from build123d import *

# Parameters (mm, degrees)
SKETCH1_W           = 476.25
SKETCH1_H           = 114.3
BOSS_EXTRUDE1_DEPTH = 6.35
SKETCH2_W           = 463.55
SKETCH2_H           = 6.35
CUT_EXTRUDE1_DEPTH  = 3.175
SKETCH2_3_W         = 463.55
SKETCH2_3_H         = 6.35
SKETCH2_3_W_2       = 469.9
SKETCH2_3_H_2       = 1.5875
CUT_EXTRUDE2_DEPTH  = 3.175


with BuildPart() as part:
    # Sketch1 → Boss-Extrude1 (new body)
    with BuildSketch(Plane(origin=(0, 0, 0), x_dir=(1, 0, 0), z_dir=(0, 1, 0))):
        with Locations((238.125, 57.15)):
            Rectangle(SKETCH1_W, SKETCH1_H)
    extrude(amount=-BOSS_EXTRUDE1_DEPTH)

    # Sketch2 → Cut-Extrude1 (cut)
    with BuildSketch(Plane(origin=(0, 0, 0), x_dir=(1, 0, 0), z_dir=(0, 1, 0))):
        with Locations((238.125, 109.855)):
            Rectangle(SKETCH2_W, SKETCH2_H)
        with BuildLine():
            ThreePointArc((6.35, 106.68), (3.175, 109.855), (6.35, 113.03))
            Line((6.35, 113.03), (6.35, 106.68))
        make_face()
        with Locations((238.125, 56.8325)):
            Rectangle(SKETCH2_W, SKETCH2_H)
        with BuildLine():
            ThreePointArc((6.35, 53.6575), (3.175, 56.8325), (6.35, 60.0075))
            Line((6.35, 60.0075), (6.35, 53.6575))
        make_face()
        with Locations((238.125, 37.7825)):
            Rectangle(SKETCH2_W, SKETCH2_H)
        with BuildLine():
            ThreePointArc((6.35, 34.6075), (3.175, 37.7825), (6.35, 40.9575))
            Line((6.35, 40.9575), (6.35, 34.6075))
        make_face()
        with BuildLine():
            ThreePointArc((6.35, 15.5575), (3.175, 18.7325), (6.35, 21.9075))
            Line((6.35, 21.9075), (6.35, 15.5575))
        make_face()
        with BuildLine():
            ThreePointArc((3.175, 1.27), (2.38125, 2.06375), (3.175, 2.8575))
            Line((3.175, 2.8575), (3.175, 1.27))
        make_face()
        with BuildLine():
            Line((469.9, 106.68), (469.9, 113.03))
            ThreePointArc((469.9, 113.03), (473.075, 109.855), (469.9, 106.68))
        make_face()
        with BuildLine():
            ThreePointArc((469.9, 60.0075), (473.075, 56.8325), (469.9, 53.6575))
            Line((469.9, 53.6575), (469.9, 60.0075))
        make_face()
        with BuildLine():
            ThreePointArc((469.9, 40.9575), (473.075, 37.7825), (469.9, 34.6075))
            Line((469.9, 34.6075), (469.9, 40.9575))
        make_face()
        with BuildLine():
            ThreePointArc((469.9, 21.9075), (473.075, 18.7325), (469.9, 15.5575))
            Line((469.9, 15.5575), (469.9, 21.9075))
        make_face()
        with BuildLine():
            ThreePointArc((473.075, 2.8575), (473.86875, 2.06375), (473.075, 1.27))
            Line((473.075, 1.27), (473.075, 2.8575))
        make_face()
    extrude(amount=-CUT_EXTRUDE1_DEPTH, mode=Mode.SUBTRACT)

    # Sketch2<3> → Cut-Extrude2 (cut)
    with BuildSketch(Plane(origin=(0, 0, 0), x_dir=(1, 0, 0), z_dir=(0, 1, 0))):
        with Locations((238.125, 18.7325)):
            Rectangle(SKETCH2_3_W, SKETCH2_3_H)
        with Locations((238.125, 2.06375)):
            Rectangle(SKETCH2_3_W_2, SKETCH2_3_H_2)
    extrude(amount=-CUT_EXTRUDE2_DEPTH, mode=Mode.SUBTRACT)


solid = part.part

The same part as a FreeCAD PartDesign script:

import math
import FreeCAD as App
import Part
import Sketcher
from FreeCAD import Vector
Q = App.Units.Quantity

doc = App.newDocument("Part")
body = doc.addObject("PartDesign::Body", "Body")

# Sketch on XZ plane
sketch1 = body.newObject("Sketcher::SketchObject", "Sketch")
sketch1.AttachmentSupport = (doc.getObject("XZ_Plane"), [""])
sketch1.MapMode = "FlatFace"
sketch1.addGeometry(Part.LineSegment(Vector(0, -114, 0), Vector(0, 0, 0)), False)
sketch1.addGeometry(Part.LineSegment(Vector(0, 0, 0), Vector(476, 0, 0)), False)
sketch1.addGeometry(Part.LineSegment(Vector(476, 0, 0), Vector(476, -114, 0)), False)
sketch1.addGeometry(Part.LineSegment(Vector(476, -114, 0), Vector(0, -114, 0)), False)
sketch1.addConstraint(Sketcher.Constraint("Coincident", 0, 2, 1, 1))
sketch1.addConstraint(Sketcher.Constraint("Coincident", 1, 2, 2, 1))
sketch1.addConstraint(Sketcher.Constraint("Coincident", 2, 2, 3, 1))
sketch1.addConstraint(Sketcher.Constraint("Coincident", 3, 2, 0, 1))
sketch1.addConstraint(Sketcher.Constraint("Vertical", 0))
sketch1.addConstraint(Sketcher.Constraint("Horizontal", 1))
sketch1.addConstraint(Sketcher.Constraint("Vertical", 2))
sketch1.addConstraint(Sketcher.Constraint("Horizontal", 3))
sketch1.addConstraint(Sketcher.Constraint("Coincident", 0, 2, -1, 1))
sketch1.addConstraint(Sketcher.Constraint("DistanceY", 0, 1, 0, 2, Q("4.5 in")))
sketch1.addConstraint(Sketcher.Constraint("DistanceX", 1, 1, 1, 2, Q("18.75 in")))
pad1 = body.newObject("PartDesign::Pad", "Pad")
pad1.Profile = sketch1
pad1.Length = Q("0.25 in")

# Sketch on XZ plane
sketch2 = body.newObject("Sketcher::SketchObject", "Sketch001")
sketch2.AttachmentSupport = (doc.getObject("XZ_Plane"), [""])
sketch2.MapMode = "FlatFace"
sketch2.addGeometry(Part.LineSegment(Vector(6.3, -106.7, 0), Vector(469.9, -106.7, 0)), False)
sketch2.addGeometry(Part.ArcOfCircle(Part.Circle(Vector(469.9, -109.9, 0), Vector(0, 0, 1), 3.2), math.radians(-90), math.radians(90)), False)
sketch2.addGeometry(Part.LineSegment(Vector(469.9, -113, 0), Vector(6.3, -113, 0)), False)
sketch2.addGeometry(Part.ArcOfCircle(Part.Circle(Vector(6.3, -109.9, 0), Vector(0, 0, 1), 3.2), math.radians(90), math.radians(270)), False)
sketch2.addGeometry(Part.LineSegment(Vector(6.3, -53.7, 0), Vector(469.9, -53.7, 0)), False)
sketch2.addGeometry(Part.ArcOfCircle(Part.Circle(Vector(469.9, -56.8, 0), Vector(0, 0, 1), 3.2), math.radians(-90), math.radians(90)), False)
sketch2.addGeometry(Part.LineSegment(Vector(469.9, -60, 0), Vector(6.3, -60, 0)), False)
sketch2.addGeometry(Part.ArcOfCircle(Part.Circle(Vector(6.3, -56.8, 0), Vector(0, 0, 1), 3.2), math.radians(90), math.radians(270)), False)
sketch2.addGeometry(Part.LineSegment(Vector(6.3, -34.6, 0), Vector(469.9, -34.6, 0)), False)
sketch2.addGeometry(Part.ArcOfCircle(Part.Circle(Vector(469.9, -37.8, 0), Vector(0, 0, 1), 3.2), math.radians(-90), math.radians(90)), False)
sketch2.addGeometry(Part.LineSegment(Vector(469.9, -41, 0), Vector(6.3, -41, 0)), False)
sketch2.addGeometry(Part.ArcOfCircle(Part.Circle(Vector(6.3, -37.8, 0), Vector(0, 0, 1), 3.2), math.radians(90), math.radians(270)), False)
sketch2.addGeometry(Part.ArcOfCircle(Part.Circle(Vector(6.3, -18.7, 0), Vector(0, 0, 1), 3.2), math.radians(90), math.radians(270)), False)
sketch2.addGeometry(Part.LineSegment(Vector(6.3, -15.6, 0), Vector(6.3, -21.9, 0)), False)
sketch2.addGeometry(Part.ArcOfCircle(Part.Circle(Vector(3.2, -2.1, 0), Vector(0, 0, 1), 0.8), math.radians(90), math.radians(270)), False)
sketch2.addGeometry(Part.LineSegment(Vector(3.2, -1.3, 0), Vector(3.2, -2.9, 0)), False)
sketch2.addGeometry(Part.ArcOfCircle(Part.Circle(Vector(469.9, -18.7, 0), Vector(0, 0, 1), 3.2), math.radians(-90), math.radians(90)), False)
sketch2.addGeometry(Part.LineSegment(Vector(469.9, -21.9, 0), Vector(469.9, -15.6, 0)), False)
sketch2.addGeometry(Part.ArcOfCircle(Part.Circle(Vector(473.1, -2.1, 0), Vector(0, 0, 1), 0.8), math.radians(-90), math.radians(90)), False)
sketch2.addGeometry(Part.LineSegment(Vector(473.1, -2.9, 0), Vector(473.1, -1.3, 0)), False)
sketch2.addConstraint(Sketcher.Constraint("Tangent", 0, 2, 1, 2))
sketch2.addConstraint(Sketcher.Constraint("Tangent", 1, 1, 2, 1))
sketch2.addConstraint(Sketcher.Constraint("Tangent", 2, 2, 3, 2))
sketch2.addConstraint(Sketcher.Constraint("Tangent", 3, 1, 0, 1))
sketch2.addConstraint(Sketcher.Constraint("Tangent", 4, 2, 5, 2))
sketch2.addConstraint(Sketcher.Constraint("Tangent", 5, 1, 6, 1))
sketch2.addConstraint(Sketcher.Constraint("Tangent", 6, 2, 7, 2))
sketch2.addConstraint(Sketcher.Constraint("Tangent", 7, 1, 4, 1))
sketch2.addConstraint(Sketcher.Constraint("Tangent", 8, 2, 9, 2))
sketch2.addConstraint(Sketcher.Constraint("Tangent", 9, 1, 10, 1))
sketch2.addConstraint(Sketcher.Constraint("Tangent", 10, 2, 11, 2))
sketch2.addConstraint(Sketcher.Constraint("Tangent", 11, 1, 8, 1))
sketch2.addConstraint(Sketcher.Constraint("Coincident", 12, 1, 13, 1))
sketch2.addConstraint(Sketcher.Constraint("Coincident", 13, 2, 12, 2))
sketch2.addConstraint(Sketcher.Constraint("Coincident", 14, 1, 15, 1))
sketch2.addConstraint(Sketcher.Constraint("Coincident", 15, 2, 14, 2))
sketch2.addConstraint(Sketcher.Constraint("Coincident", 16, 1, 17, 1))
sketch2.addConstraint(Sketcher.Constraint("Coincident", 17, 2, 16, 2))
sketch2.addConstraint(Sketcher.Constraint("Coincident", 18, 1, 19, 1))
sketch2.addConstraint(Sketcher.Constraint("Coincident", 19, 2, 18, 2))
sketch2.addConstraint(Sketcher.Constraint("Horizontal", 0))
sketch2.addConstraint(Sketcher.Constraint("Horizontal", 2))
sketch2.addConstraint(Sketcher.Constraint("Horizontal", 4))
sketch2.addConstraint(Sketcher.Constraint("Horizontal", 6))
sketch2.addConstraint(Sketcher.Constraint("Horizontal", 8))
sketch2.addConstraint(Sketcher.Constraint("Horizontal", 10))
sketch2.addConstraint(Sketcher.Constraint("Vertical", 13))
sketch2.addConstraint(Sketcher.Constraint("Vertical", 15))
sketch2.addConstraint(Sketcher.Constraint("Vertical", 17))
sketch2.addConstraint(Sketcher.Constraint("Vertical", 19))
sketch2.addConstraint(Sketcher.Constraint("Equal", 3, 5))
sketch2.addConstraint(Sketcher.Constraint("Equal", 7, 9))
sketch2.addConstraint(Sketcher.Constraint("Equal", 11, 12))
sketch2.addConstraint(Sketcher.Constraint("Equal", 12, 16))
sketch2.addConstraint(Sketcher.Constraint("Equal", 14, 18))
sketch2.addConstraint(Sketcher.Constraint("Horizontal", 12, 3, 16, 3))
sketch2.addConstraint(Sketcher.Constraint("Horizontal", 14, 3, 18, 3))
sketch2.addConstraint(Sketcher.Constraint("Vertical", 1, 3, 5, 3))
sketch2.addConstraint(Sketcher.Constraint("Vertical", 3, 3, 7, 3))
sketch2.addConstraint(Sketcher.Constraint("Vertical", 5, 3, 9, 3))
sketch2.addConstraint(Sketcher.Constraint("Vertical", 7, 3, 11, 3))
sketch2.addConstraint(Sketcher.Constraint("Vertical", 11, 3, 12, 3))
sketch2.addConstraint(Sketcher.Constraint("Vertical", 9, 3, 16, 3))
sketch2.addConstraint(Sketcher.Constraint("Vertical", 11, 1, 12, 1))
sketch2.addConstraint(Sketcher.Constraint("Vertical", 9, 1, 16, 1))
sketch2.addConstraint(Sketcher.Constraint("Radius", 1, Q("0.125 in")))
sketch2.addConstraint(Sketcher.Constraint("Radius", 14, Q("0.03125 in")))
sketch2.addConstraint(Sketcher.Constraint("DistanceY", 5, 1, 8, 2, Q("1 in")))
sketch2.addConstraint(Sketcher.Constraint("DistanceY", 10, 2, 12, 1, Q("1 in")))
sketch2.addConstraint(Sketcher.Constraint("DistanceX", 0, 1, 0, 2, Q("18.25 in")))
sketch2.addConstraint(Sketcher.Constraint("DistanceX", -1, 1, 1, 3, Q("18.5 in")))
sketch2.addConstraint(Sketcher.Constraint("DistanceY", 0, 2, -1, 1, Q("4.2 in")))
sketch2.addConstraint(Sketcher.Constraint("DistanceY", 12, 1, 15, 2, Q("0.5 in")))
sketch2.addConstraint(Sketcher.Constraint("DistanceY", 14, 1, -1, 1, Q("0.05 in")))
sketch2.addConstraint(Sketcher.Constraint("DistanceX", -1, 1, 14, 3, Q("0.125 in")))
sketch2.addConstraint(Sketcher.Constraint("DistanceX", -1, 1, 18, 3, Q("18.625 in")))
sketch2.addConstraint(Sketcher.Constraint("DistanceX", -1, 1, 14, 1, Q("0.125 in")))
sketch2.addConstraint(Sketcher.Constraint("DistanceX", -1, 1, 18, 1, Q("18.625 in")))
pocket1 = body.newObject("PartDesign::Pocket", "Pocket")
pocket1.Profile = sketch2
pocket1.Length = Q("0.125 in")
pocket1.Reversed = True

# Sketch on XZ plane
sketch3 = body.newObject("Sketcher::SketchObject", "Sketch002")
sketch3.AttachmentSupport = (doc.getObject("XZ_Plane"), [""])
sketch3.MapMode = "FlatFace"
sketch3.addGeometry(Part.LineSegment(Vector(6.3, -21.9, 0), Vector(6.3, -15.6, 0)), False)
sketch3.addGeometry(Part.LineSegment(Vector(6.3, -15.6, 0), Vector(469.9, -15.6, 0)), False)
sketch3.addGeometry(Part.LineSegment(Vector(469.9, -15.6, 0), Vector(469.9, -21.9, 0)), False)
sketch3.addGeometry(Part.LineSegment(Vector(469.9, -21.9, 0), Vector(6.3, -21.9, 0)), False)
sketch3.addGeometry(Part.LineSegment(Vector(3.2, -2.9, 0), Vector(3.2, -1.3, 0)), False)
sketch3.addGeometry(Part.LineSegment(Vector(3.2, -1.3, 0), Vector(473.1, -1.3, 0)), False)
sketch3.addGeometry(Part.LineSegment(Vector(473.1, -1.3, 0), Vector(473.1, -2.9, 0)), False)
sketch3.addGeometry(Part.LineSegment(Vector(473.1, -2.9, 0), Vector(3.2, -2.9, 0)), False)
sketch3.addConstraint(Sketcher.Constraint("Coincident", 0, 2, 1, 1))
sketch3.addConstraint(Sketcher.Constraint("Coincident", 1, 2, 2, 1))
sketch3.addConstraint(Sketcher.Constraint("Coincident", 2, 2, 3, 1))
sketch3.addConstraint(Sketcher.Constraint("Coincident", 3, 2, 0, 1))
sketch3.addConstraint(Sketcher.Constraint("Coincident", 4, 2, 5, 1))
sketch3.addConstraint(Sketcher.Constraint("Coincident", 5, 2, 6, 1))
sketch3.addConstraint(Sketcher.Constraint("Coincident", 6, 2, 7, 1))
sketch3.addConstraint(Sketcher.Constraint("Coincident", 7, 2, 4, 1))
sketch3.addConstraint(Sketcher.Constraint("Vertical", 0))
sketch3.addConstraint(Sketcher.Constraint("Horizontal", 1))
sketch3.addConstraint(Sketcher.Constraint("Vertical", 2))
sketch3.addConstraint(Sketcher.Constraint("Horizontal", 3))
sketch3.addConstraint(Sketcher.Constraint("Vertical", 4))
sketch3.addConstraint(Sketcher.Constraint("Horizontal", 5))
sketch3.addConstraint(Sketcher.Constraint("Vertical", 6))
sketch3.addConstraint(Sketcher.Constraint("Horizontal", 7))
sketch3.addConstraint(Sketcher.Constraint("DistanceX", 5, 1, 5, 2, Q("18.5 in")))
sketch3.addConstraint(Sketcher.Constraint("DistanceX", 1, 1, 1, 2, Q("18.25 in")))
sketch3.addConstraint(Sketcher.Constraint("DistanceY", 0, 1, 0, 2, Q("0.25 in")))
sketch3.addConstraint(Sketcher.Constraint("DistanceX", -1, 1, 1, 2, Q("18.5 in")))
sketch3.addConstraint(Sketcher.Constraint("DistanceY", 1, 2, 6, 2, Q("0.5 in")))
sketch3.addConstraint(Sketcher.Constraint("DistanceY", 4, 1, 4, 2, Q("0.0625 in")))
sketch3.addConstraint(Sketcher.Constraint("DistanceY", 4, 2, -1, 1, Q("0.05 in")))
sketch3.addConstraint(Sketcher.Constraint("DistanceX", -1, 1, 4, 2, Q("0.125 in")))
pocket2 = body.newObject("PartDesign::Pocket", "Pocket001")
pocket2.Profile = sketch3
pocket2.Length = Q("0.125 in")
pocket2.Reversed = True

doc.recompute()
